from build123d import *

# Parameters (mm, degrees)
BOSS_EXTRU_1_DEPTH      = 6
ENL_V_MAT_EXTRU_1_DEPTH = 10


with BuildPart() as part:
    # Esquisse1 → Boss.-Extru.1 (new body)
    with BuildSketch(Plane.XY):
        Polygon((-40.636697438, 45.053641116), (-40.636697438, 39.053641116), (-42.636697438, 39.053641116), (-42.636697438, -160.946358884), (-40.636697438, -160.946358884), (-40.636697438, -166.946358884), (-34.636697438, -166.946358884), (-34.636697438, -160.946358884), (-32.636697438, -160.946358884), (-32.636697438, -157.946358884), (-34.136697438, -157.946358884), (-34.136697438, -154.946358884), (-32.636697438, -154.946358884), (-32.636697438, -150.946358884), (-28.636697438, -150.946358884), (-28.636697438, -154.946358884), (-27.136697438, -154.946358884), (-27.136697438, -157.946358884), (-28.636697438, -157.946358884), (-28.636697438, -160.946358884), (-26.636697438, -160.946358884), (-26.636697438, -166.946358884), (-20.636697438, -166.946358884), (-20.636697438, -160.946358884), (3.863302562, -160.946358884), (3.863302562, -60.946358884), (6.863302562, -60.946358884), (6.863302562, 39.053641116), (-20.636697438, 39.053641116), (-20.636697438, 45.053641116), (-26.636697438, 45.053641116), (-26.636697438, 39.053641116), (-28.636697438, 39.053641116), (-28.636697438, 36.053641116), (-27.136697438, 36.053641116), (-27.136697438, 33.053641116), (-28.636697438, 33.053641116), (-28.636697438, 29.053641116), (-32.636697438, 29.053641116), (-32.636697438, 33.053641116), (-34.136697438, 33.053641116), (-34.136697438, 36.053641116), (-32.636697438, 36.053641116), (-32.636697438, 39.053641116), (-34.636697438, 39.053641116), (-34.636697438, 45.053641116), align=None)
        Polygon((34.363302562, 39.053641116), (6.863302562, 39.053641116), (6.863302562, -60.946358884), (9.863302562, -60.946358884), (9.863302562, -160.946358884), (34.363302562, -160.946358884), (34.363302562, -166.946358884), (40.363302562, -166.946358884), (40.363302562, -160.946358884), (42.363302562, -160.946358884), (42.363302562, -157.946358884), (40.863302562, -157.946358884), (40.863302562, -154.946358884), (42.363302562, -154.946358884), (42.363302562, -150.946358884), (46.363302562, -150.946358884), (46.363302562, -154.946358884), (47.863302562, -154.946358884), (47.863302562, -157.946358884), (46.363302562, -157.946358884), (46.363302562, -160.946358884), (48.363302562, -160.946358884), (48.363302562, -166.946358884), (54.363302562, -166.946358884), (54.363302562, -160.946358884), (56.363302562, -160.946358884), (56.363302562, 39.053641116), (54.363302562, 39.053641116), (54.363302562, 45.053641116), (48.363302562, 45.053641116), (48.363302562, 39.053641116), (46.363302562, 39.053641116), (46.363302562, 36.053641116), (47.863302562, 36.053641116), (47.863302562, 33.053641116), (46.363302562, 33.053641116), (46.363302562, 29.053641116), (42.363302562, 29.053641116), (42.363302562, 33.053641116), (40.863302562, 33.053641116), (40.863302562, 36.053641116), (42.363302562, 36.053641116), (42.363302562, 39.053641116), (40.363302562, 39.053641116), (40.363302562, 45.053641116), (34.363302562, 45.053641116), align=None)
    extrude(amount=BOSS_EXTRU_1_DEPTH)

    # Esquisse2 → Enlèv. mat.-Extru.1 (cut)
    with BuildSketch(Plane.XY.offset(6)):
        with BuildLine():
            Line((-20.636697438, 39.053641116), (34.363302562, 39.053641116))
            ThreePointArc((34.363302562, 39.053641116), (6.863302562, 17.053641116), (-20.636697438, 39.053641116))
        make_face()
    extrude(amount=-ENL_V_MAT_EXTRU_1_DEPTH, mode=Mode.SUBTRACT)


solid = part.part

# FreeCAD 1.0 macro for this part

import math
import FreeCAD as App
import Part
import Sketcher


def add_polygon(sketch, points):
    """Adds a closed chain of lines whose ends are joined by coincident constraints."""
    first, n = sketch.GeometryCount, len(points)
    for a, b in zip(points, points[1:] + points[:1]):
        sketch.addGeometry(Part.LineSegment(App.Vector(*a, 0), App.Vector(*b, 0)), False)
    for i in range(n):
        sketch.addConstraint(Sketcher.Constraint("Coincident", first + i, 2, first + (i + 1) % n, 1))

doc = App.newDocument("Part")
body = doc.addObject("PartDesign::Body", "Body")

sketch1 = doc.addObject("Sketcher::SketchObject", "Sketch")
body.addObject(sketch1)
sketch1.AttachmentSupport = (doc.XY_Plane, [""])
sketch1.MapMode = "FlatFace"
add_polygon(sketch1, [(-40.636697, 45.053641), (-40.636697, 39.053641), (-42.636697, 39.053641), (-42.636697, -160.946359), (-40.636697, -160.946359), (-40.636697, -166.946359), (-34.636697, -166.946359), (-34.636697, -160.946359), (-32.636697, -160.946359), (-32.636697, -157.946359), (-34.136697, -157.946359), (-34.136697, -154.946359), (-32.636697, -154.946359), (-32.636697, -150.946359), (-28.636697, -150.946359), (-28.636697, -154.946359), (-27.136697, -154.946359), (-27.136697, -157.946359), (-28.636697, -157.946359), (-28.636697, -160.946359), (-26.636697, -160.946359), (-26.636697, -166.946359), (-20.636697, -166.946359), (-20.636697, -160.946359), (3.863303, -160.946359), (3.863303, -60.946359), (9.863303, -60.946359), (9.863303, -160.946359), (34.363303, -160.946359), (34.363303, -166.946359), (40.363303, -166.946359), (40.363303, -160.946359), (42.363303, -160.946359), (42.363303, -157.946359), (40.863303, -157.946359), (40.863303, -154.946359), (42.363303, -154.946359), (42.363303, -150.946359), (46.363303, -150.946359), (46.363303, -154.946359), (47.863303, -154.946359), (47.863303, -157.946359), (46.363303, -157.946359), (46.363303, -160.946359), (48.363303, -160.946359), (48.363303, -166.946359), (54.363303, -166.946359), (54.363303, -160.946359), (56.363303, -160.946359), (56.363303, 39.053641), (54.363303, 39.053641), (54.363303, 45.053641), (48.363303, 45.053641), (48.363303, 39.053641), (46.363303, 39.053641), (46.363303, 36.053641), (47.863303, 36.053641), (47.863303, 33.053641), (46.363303, 33.053641), (46.363303, 29.053641), (42.363303, 29.053641), (42.363303, 33.053641), (40.863303, 33.053641), (40.863303, 36.053641), (42.363303, 36.053641), (42.363303, 39.053641), (40.363303, 39.053641), (40.363303, 45.053641), (34.363303, 45.053641), (34.363303, 39.053641), (-20.636697, 39.053641), (-20.636697, 45.053641), (-26.636697, 45.053641), (-26.636697, 39.053641), (-28.636697, 39.053641), (-28.636697, 36.053641), (-27.136697, 36.053641), (-27.136697, 33.053641), (-28.636697, 33.053641), (-28.636697, 29.053641), (-32.636697, 29.053641), (-32.636697, 33.053641), (-34.136697, 33.053641), (-34.136697, 36.053641), (-32.636697, 36.053641), (-32.636697, 39.053641), (-34.636697, 39.053641), (-34.636697, 45.053641)])
sketch1.addConstraint([
    Sketcher.Constraint("Vertical", 0),
    Sketcher.Constraint("Horizontal", 1),
    Sketcher.Constraint("Vertical", 2),
    Sketcher.Constraint("Horizontal", 3),
    Sketcher.Constraint("Vertical", 4),
    Sketcher.Constraint("Horizontal", 5),
    Sketcher.Constraint("Vertical", 6),
    Sketcher.Constraint("Horizontal", 7),
    Sketcher.Constraint("Vertical", 8),
    Sketcher.Constraint("Horizontal", 9),
    Sketcher.Constraint("Vertical", 10),
    Sketcher.Constraint("Horizontal", 11),
    Sketcher.Constraint("Vertical", 12),
    Sketcher.Constraint("Horizontal", 13),
    Sketcher.Constraint("Vertical", 14),
    Sketcher.Constraint("Horizontal", 15),
    Sketcher.Constraint("Vertical", 16),
    Sketcher.Constraint("Horizontal", 17),
    Sketcher.Constraint("Vertical", 18),
    Sketcher.Constraint("Horizontal", 19),
    Sketcher.Constraint("Vertical", 20),
    Sketcher.Constraint("Horizontal", 21),
    Sketcher.Constraint("Vertical", 22),
    Sketcher.Constraint("Horizontal", 23),
    Sketcher.Constraint("Vertical", 24),
    Sketcher.Constraint("Horizontal", 25),
    Sketcher.Constraint("Vertical", 26),
    Sketcher.Constraint("Horizontal", 27),
    Sketcher.Constraint("Vertical", 28),
    Sketcher.Constraint("Horizontal", 29),
    Sketcher.Constraint("Vertical", 30),
    Sketcher.Constraint("Horizontal", 31),
    Sketcher.Constraint("Vertical", 32),
    Sketcher.Constraint("Horizontal", 33),
    Sketcher.Constraint("Vertical", 34),
    Sketcher.Constraint("Horizontal", 35),
    Sketcher.Constraint("Vertical", 36),
    Sketcher.Constraint("Horizontal", 37),
    Sketcher.Constraint("Vertical", 38),
    Sketcher.Constraint("Horizontal", 39),
    Sketcher.Constraint("Vertical", 40),
    Sketcher.Constraint("Horizontal", 41),
    Sketcher.Constraint("Vertical", 42),
    Sketcher.Constraint("Horizontal", 43),
    Sketcher.Constraint("Vertical", 44),
    Sketcher.Constraint("Horizontal", 45),
    Sketcher.Constraint("Vertical", 46),
    Sketcher.Constraint("Horizontal", 47),
    Sketcher.Constraint("Vertical", 48),
    Sketcher.Constraint("Horizontal", 49),
    Sketcher.Constraint("Vertical", 50),
    Sketcher.Constraint("Horizontal", 51),
    Sketcher.Constraint("Vertical", 52),
    Sketcher.Constraint("Horizontal", 53),
    Sketcher.Constraint("Vertical", 54),
    Sketcher.Constraint("Horizontal", 55),
    Sketcher.Constraint("Vertical", 56),
    Sketcher.Constraint("Horizontal", 57),
    Sketcher.Constraint("Vertical", 58),
    Sketcher.Constraint("Horizontal", 59),
    Sketcher.Constraint("Vertical", 60),
    Sketcher.Constraint("Horizontal", 61),
    Sketcher.Constraint("Vertical", 62),
    Sketcher.Constraint("Horizontal", 63),
    Sketcher.Constraint("Vertical", 64),
    Sketcher.Constraint("Horizontal", 65),
    Sketcher.Constraint("Vertical", 66),
    Sketcher.Constraint("Horizontal", 67),
    Sketcher.Constraint("Vertical", 68),
    Sketcher.Constraint("Horizontal", 69),
    Sketcher.Constraint("Vertical", 70),
    Sketcher.Constraint("Horizontal", 71),
    Sketcher.Constraint("Vertical", 72),
    Sketcher.Constraint("Horizontal", 73),
    Sketcher.Constraint("Vertical", 74),
    Sketcher.Constraint("Horizontal", 75),
    Sketcher.Constraint("Vertical", 76),
    Sketcher.Constraint("Horizontal", 77),
    Sketcher.Constraint("Vertical", 78),
    Sketcher.Constraint("Horizontal", 79),
    Sketcher.Constraint("Vertical", 80),
    Sketcher.Constraint("Horizontal", 81),
    Sketcher.Constraint("Vertical", 82),
    Sketcher.Constraint("Horizontal", 83),
    Sketcher.Constraint("Vertical", 84),
    Sketcher.Constraint("Horizontal", 85),
    Sketcher.Constraint("Vertical", 86),
    Sketcher.Constraint("Horizontal", 87),
    Sketcher.Constraint("Horizontal", 3, 2, 6, 2),
    Sketcher.Constraint("Horizontal", 11, 2, 14, 2),
    Sketcher.Constraint("Horizontal", 9, 2, 16, 2),
    Sketcher.Constraint("Horizontal", 7, 2, 18, 2),
    Sketcher.Constraint("Horizontal", 5, 2, 20, 2),
    Sketcher.Constraint("Horizontal", 19, 2, 22, 2),
    Sketcher.Constraint("Horizontal", 23, 2, 26, 2),
    Sketcher.Constraint("Horizontal", 21, 2, 28, 2),
    Sketcher.Constraint("Horizontal", 27, 2, 30, 2),
    Sketcher.Constraint("Horizontal", 17, 2, 32, 2),
    Sketcher.Constraint("Horizontal", 15, 2, 34, 2),
    Sketcher.Constraint("Horizontal", 13, 2, 36, 2),
    Sketcher.Constraint("Horizontal", 35, 2, 38, 2),
    Sketcher.Constraint("Horizontal", 33, 2, 40, 2),
    Sketcher.Constraint("Horizontal", 31, 2, 42, 2),
    Sketcher.Constraint("Horizontal", 29, 2, 44, 2),
    Sketcher.Constraint("Horizontal", 43, 2, 46, 2),
    Sketcher.Constraint("Horizontal", 1, 2, 48, 2),
    Sketcher.Constraint("Horizontal", 49, 2, 52, 2),
    Sketcher.Constraint("Horizontal", 57, 2, 60, 2),
    Sketcher.Constraint("Horizontal", 55, 2, 62, 2),
    Sketcher.Constraint("Horizontal", 53, 2, 64, 2),
    Sketcher.Constraint("Horizontal", 51, 2, 66, 2),
    Sketcher.Constraint("Horizontal", 65, 2, 68, 2),
    Sketcher.Constraint("Horizontal", 67, 2, 70, 2),
    Sketcher.Constraint("Horizontal", 69, 2, 72, 2),
    Sketcher.Constraint("Horizontal", 63, 2, 74, 2),
    Sketcher.Constraint("Horizontal", 61, 2, 76, 2),
    Sketcher.Constraint("Horizontal", 59, 2, 78, 2),
    Sketcher.Constraint("Horizontal", 77, 2, 80, 2),
    Sketcher.Constraint("Horizontal", 75, 2, 82, 2),
    Sketcher.Constraint("Horizontal", 73, 2, 84, 2),
    Sketcher.Constraint("Horizontal", 71, 2, 86, 2),
    Sketcher.Constraint("Vertical", 0, 2, 3, 2),
    Sketcher.Constraint("Vertical", 8, 2, 11, 2),
    Sketcher.Constraint("Vertical", 14, 2, 17, 2),
    Sketcher.Constraint("Vertical", 32, 2, 35, 2),
    Sketcher.Constraint("Vertical", 38, 2, 41, 2),
    Sketcher.Constraint("Vertical", 46, 2, 49, 2),
    Sketcher.Constraint("Vertical", 44, 2, 51, 2),
    Sketcher.Constraint("Vertical", 42, 2, 53, 2),
    Sketcher.Constraint("Vertical", 40, 2, 55, 2),
    Sketcher.Constraint("Vertical", 54, 2, 57, 2),
    Sketcher.Constraint("Vertical", 36, 2, 59, 2),
    Sketcher.Constraint("Vertical", 34, 2, 61, 2),
    Sketcher.Constraint("Vertical", 60, 2, 63, 2),
    Sketcher.Constraint("Vertical", 30, 2, 65, 2),
    Sketcher.Constraint("Vertical", 28, 2, 67, 2),
    Sketcher.Constraint("Vertical", 22, 2, 69, 2),
    Sketcher.Constraint("Vertical", 20, 2, 71, 2),
    Sketcher.Constraint("Vertical", 18, 2, 73, 2),
    Sketcher.Constraint("Vertical", 16, 2, 75, 2),
    Sketcher.Constraint("Vertical", 74, 2, 77, 2),
    Sketcher.Constraint("Vertical", 12, 2, 79, 2),
    Sketcher.Constraint("Vertical", 10, 2, 81, 2),
    Sketcher.Constraint("Vertical", 80, 2, 83, 2),
    Sketcher.Constraint("Vertical", 6, 2, 85, 2),
    Sketcher.Constraint("Equal", 3, 7),
    Sketcher.Constraint("Equal", 11, 15),
    Sketcher.Constraint("Equal", 7, 19),
    Sketcher.Constraint("Equal", 5, 21),
    Sketcher.Constraint("Equal", 21, 25),
    Sketcher.Constraint("Equal", 23, 27),
    Sketcher.Constraint("Equal", 25, 29),
    Sketcher.Constraint("Equal", 19, 31),
    Sketcher.Constraint("Equal", 17, 33),
    Sketcher.Constraint("Equal", 13, 37),
    Sketcher.Constraint("Equal", 35, 39),
    Sketcher.Constraint("Equal", 31, 43),
    Sketcher.Constraint("Equal", 29, 45),
    Sketcher.Constraint("Equal", 43, 47),
    Sketcher.Constraint("Equal", 87, 0),
    Sketcher.Constraint("Equal", 0, 4),
    Sketcher.Constraint("Equal", 8, 10),
    Sketcher.Constraint("Equal", 79, 12),
    Sketcher.Constraint("Equal", 42, 54),
    Sketcher.Constraint("Equal", 54, 56),
    Sketcher.Constraint("Equal", 38, 58),
    Sketcher.Constraint("DistanceX", 1, 2, 1, 1, 2.0),
    Sketcher.Constraint("DistanceX", 5, 1, 5, 2, 6.0),
    Sketcher.Constraint("DistanceX", 13, 1, 13, 2, 4.0),
    Sketcher.Constraint("DistanceX", 69, 2, 69, 1, 55.0),
    Sketcher.Constraint("DistanceY", 2, 2, 2, 1, 200.0),
    Sketcher.Constraint("DistanceY", 8, 1, 8, 2, 3.0),
    Sketcher.Constraint("DistanceY", 24, 1, 24, 2, 100.0),
    Sketcher.Constraint("DistanceX", 9, 2, 9, 1, 1.5),
    Sketcher.Constraint("DistanceY", -1, 1, 0, 2, 39.053641),
    Sketcher.Constraint("DistanceX", 0, 2, -1, 1, 40.636697),
])
pad1 = doc.addObject("PartDesign::Pad", "Pad")
body.addObject(pad1)
pad1.Profile = sketch1
pad1.Length = 6

sketch2 = doc.addObject("Sketcher::SketchObject", "Sketch001")
body.addObject(sketch2)
sketch2.AttachmentSupport = (doc.XY_Plane, [""])
sketch2.MapMode = "FlatFace"
sketch2.AttachmentOffset = App.Placement(App.Vector(0, 0, 6), App.Rotation())
sketch2.addGeometry([
    Part.LineSegment(App.Vector(34.363303, 39.053641, 0), App.Vector(-20.636697, 39.053641, 0)),
    Part.ArcOfCircle(Part.Circle(App.Vector(6.863303, 45.241141, 0), App.Vector(0, 0, 1), 28.1875), math.radians(-167.319617), math.radians(-12.680383)),
], False)
sketch2.addConstraint([
    Sketcher.Constraint("Coincident", 0, 1, 1, 2),
    Sketcher.Constraint("Coincident", 1, 1, 0, 2),
    Sketcher.Constraint("Horizontal", 0),
    Sketcher.Constraint("DistanceX", 0, 2, 0, 1, 55.0),
    Sketcher.Constraint("Radius", 1, 28.1875),
    Sketcher.Constraint("DistanceY", -1, 1, 1, 3, 45.241141),
    Sketcher.Constraint("DistanceX", -1, 1, 1, 3, 6.863303),
])
pocket1 = doc.addObject("PartDesign::Pocket", "Pocket")
body.addObject(pocket1)
pocket1.Profile = sketch2
pocket1.Length = 10

doc.recompute()
